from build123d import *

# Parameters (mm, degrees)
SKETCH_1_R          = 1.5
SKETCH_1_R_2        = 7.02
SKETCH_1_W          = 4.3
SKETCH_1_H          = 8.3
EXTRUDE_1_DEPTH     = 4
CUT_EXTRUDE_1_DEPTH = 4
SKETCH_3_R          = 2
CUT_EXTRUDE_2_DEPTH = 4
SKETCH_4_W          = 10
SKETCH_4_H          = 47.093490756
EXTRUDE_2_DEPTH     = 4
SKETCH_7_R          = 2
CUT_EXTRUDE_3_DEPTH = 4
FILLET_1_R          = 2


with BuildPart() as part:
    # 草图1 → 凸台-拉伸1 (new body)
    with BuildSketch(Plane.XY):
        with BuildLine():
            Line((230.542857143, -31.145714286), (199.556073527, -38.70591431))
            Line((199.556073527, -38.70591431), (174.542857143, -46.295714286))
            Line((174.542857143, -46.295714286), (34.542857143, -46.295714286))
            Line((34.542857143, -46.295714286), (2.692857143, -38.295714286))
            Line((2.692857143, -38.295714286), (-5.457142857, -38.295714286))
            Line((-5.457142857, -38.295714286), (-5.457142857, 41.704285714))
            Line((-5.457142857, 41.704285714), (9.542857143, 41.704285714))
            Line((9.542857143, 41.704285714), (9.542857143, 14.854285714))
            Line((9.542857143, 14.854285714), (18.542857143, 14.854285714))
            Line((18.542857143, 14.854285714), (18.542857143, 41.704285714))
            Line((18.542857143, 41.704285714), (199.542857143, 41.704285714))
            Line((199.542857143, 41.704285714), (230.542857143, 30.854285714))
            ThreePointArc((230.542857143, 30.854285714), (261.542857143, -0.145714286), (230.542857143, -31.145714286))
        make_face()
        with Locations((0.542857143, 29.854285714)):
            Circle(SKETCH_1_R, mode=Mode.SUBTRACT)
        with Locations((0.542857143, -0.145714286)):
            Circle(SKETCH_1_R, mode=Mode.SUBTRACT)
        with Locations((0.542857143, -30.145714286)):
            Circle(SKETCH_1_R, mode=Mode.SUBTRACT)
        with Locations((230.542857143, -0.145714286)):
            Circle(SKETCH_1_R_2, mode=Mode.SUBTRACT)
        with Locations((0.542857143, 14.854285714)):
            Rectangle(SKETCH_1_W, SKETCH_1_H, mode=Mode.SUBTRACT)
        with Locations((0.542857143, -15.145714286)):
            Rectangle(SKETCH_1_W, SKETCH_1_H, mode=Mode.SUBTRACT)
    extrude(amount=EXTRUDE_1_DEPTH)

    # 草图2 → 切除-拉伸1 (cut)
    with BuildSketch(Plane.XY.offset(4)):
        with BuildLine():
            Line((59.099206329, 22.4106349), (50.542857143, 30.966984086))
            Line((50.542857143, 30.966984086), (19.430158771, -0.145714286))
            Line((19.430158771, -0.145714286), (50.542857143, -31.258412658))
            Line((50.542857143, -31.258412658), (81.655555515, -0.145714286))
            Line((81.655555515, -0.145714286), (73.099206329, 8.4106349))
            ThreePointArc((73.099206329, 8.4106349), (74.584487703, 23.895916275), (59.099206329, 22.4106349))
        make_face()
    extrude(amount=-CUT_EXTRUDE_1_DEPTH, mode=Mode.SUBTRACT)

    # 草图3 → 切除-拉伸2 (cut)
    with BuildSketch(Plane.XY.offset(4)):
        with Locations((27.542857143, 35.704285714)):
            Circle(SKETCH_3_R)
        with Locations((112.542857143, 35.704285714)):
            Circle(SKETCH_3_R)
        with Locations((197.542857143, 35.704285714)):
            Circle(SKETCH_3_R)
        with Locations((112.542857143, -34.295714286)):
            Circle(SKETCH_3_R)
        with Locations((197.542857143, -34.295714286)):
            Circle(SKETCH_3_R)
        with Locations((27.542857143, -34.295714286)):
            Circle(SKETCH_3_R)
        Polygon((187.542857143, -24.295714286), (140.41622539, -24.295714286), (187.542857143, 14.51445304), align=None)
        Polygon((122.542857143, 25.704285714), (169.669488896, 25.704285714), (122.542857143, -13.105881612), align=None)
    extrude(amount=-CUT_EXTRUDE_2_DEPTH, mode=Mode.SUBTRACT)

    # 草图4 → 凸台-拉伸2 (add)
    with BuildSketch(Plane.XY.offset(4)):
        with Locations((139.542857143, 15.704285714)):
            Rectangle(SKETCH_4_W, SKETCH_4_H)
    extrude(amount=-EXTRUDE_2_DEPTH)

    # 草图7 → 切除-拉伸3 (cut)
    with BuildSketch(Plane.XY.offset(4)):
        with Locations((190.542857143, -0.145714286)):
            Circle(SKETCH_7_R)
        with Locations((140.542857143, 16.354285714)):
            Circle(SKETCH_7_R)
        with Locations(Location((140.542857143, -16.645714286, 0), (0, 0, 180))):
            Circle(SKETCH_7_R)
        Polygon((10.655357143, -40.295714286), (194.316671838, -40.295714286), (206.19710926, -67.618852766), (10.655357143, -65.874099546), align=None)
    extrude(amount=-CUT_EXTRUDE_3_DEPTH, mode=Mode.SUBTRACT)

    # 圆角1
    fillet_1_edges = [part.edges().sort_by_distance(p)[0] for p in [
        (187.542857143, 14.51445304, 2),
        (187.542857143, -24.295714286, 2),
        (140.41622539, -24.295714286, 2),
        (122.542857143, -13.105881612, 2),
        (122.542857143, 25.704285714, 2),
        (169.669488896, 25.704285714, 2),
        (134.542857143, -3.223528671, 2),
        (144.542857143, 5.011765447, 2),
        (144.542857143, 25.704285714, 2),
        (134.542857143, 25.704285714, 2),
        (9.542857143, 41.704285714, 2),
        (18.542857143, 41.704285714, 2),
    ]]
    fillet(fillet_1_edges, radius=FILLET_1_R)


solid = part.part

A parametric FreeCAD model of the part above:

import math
import FreeCAD as App
import Part
import Sketcher
from FreeCAD import Vector
Q = App.Units.Quantity


def edges_at(feature, points):
    """Names of the edges that pass closest to the given points."""
    edges = feature.Shape.Edges
    near = lambda p: min(range(len(edges)), key=lambda i: edges[i].distToShape(Part.Vertex(*p))[0])
    return sorted({f"Edge{near(p) + 1}" for p in points})


def add_polygon(sketch, points):
    """Adds a closed chain of lines whose ends are joined by coincident constraints."""
    first, n = sketch.GeometryCount, len(points)
    for a, b in zip(points, points[1:] + points[:1]):
        sketch.addGeometry(Part.LineSegment(App.Vector(*a, 0), App.Vector(*b, 0)), False)
    for i in range(n):
        sketch.addConstraint(Sketcher.Constraint("Coincident", first + i, 2, first + (i + 1) % n, 1))

doc = App.newDocument("Part")
body = doc.addObject("PartDesign::Body", "Body")

# Sketch on XY plane
sketch1 = body.newObject("Sketcher::SketchObject", "Sketch")
sketch1.AttachmentSupport = (doc.getObject("XY_Plane"), [""])
sketch1.MapMode = "FlatFace"
sketch1.addGeometry(Part.LineSegment(Vector(199.6, -38.7, 0), Vector(230.5, -31.1, 0)), False)  # 0
sketch1.addGeometry(Part.ArcOfCircle(Part.Circle(Vector(230.5, -0.1, 0), Vector(0, 0, 1), 31), math.radians(-90), math.radians(90)), False)  # 1
sketch1.addGeometry(Part.LineSegment(Vector(230.5, 30.9, 0), Vector(199.5, 41.7, 0)), False)  # 2
sketch1.addGeometry(Part.LineSegment(Vector(199.5, 41.7, 0), Vector(18.5, 41.7, 0)), False)  # 3
sketch1.addGeometry(Part.LineSegment(Vector(18.5, 41.7, 0), Vector(18.5, 14.9, 0)), False)  # 4
sketch1.addGeometry(Part.LineSegment(Vector(18.5, 14.9, 0), Vector(9.5, 14.9, 0)), False)  # 5
sketch1.addGeometry(Part.LineSegment(Vector(9.5, 14.9, 0), Vector(9.5, 41.7, 0)), False)  # 6
sketch1.addGeometry(Part.LineSegment(Vector(9.5, 41.7, 0), Vector(-5.5, 41.7, 0)), False)  # 7
sketch1.addGeometry(Part.LineSegment(Vector(-5.5, 41.7, 0), Vector(-5.5, -38.3, 0)), False)  # 8
sketch1.addGeometry(Part.LineSegment(Vector(-5.5, -38.3, 0), Vector(2.7, -38.3, 0)), False)  # 9
sketch1.addGeometry(Part.LineSegment(Vector(2.7, -38.3, 0), Vector(34.5, -46.3, 0)), False)  # 10
sketch1.addGeometry(Part.LineSegment(Vector(34.5, -46.3, 0), Vector(174.5, -46.3, 0)), False)  # 11
sketch1.addGeometry(Part.LineSegment(Vector(174.5, -46.3, 0), Vector(199.6, -38.7, 0)), False)  # 12
sketch1.addGeometry(Part.Circle(Vector(0.5, -30.1, 0), Vector(0, 0, 1), 1.5), False)  # 13
add_polygon(sketch1, [(-1.6, -19.3), (-1.6, -11), (2.7, -11), (2.7, -19.3)])  # lines 14-17
sketch1.addGeometry(Part.Circle(Vector(230.5, -0.1, 0), Vector(0, 0, 1), 7), False)  # 18
sketch1.addGeometry(Part.Circle(Vector(0.5, -0.1, 0), Vector(0, 0, 1), 1.5), False)  # 19
add_polygon(sketch1, [(-1.6, 10.7), (-1.6, 19), (2.7, 19), (2.7, 10.7)])  # lines 20-23
sketch1.addGeometry(Part.Circle(Vector(0.5, 29.9, 0), Vector(0, 0, 1), 1.5), False)  # 24
sketch1.addConstraint([
    Sketcher.Constraint("Coincident", 0, 2, 1, 1),
    Sketcher.Constraint("Coincident", 1, 2, 2, 1),
    Sketcher.Constraint("Coincident", 2, 2, 3, 1),
    Sketcher.Constraint("Coincident", 3, 2, 4, 1),
    Sketcher.Constraint("Coincident", 4, 2, 5, 1),
    Sketcher.Constraint("Coincident", 5, 2, 6, 1),
    Sketcher.Constraint("Coincident", 6, 2, 7, 1),
    Sketcher.Constraint("Coincident", 7, 2, 8, 1),
    Sketcher.Constraint("Coincident", 8, 2, 9, 1),
    Sketcher.Constraint("Coincident", 9, 2, 10, 1),
    Sketcher.Constraint("Coincident", 10, 2, 11, 1),
    Sketcher.Constraint("Coincident", 11, 2, 12, 1),
    Sketcher.Constraint("Coincident", 12, 2, 0, 1),
    Sketcher.Constraint("Horizontal", 3),
    Sketcher.Constraint("Vertical", 4),
    Sketcher.Constraint("Horizontal", 5),
    Sketcher.Constraint("Vertical", 6),
    Sketcher.Constraint("Horizontal", 7),
    Sketcher.Constraint("Vertical", 8),
    Sketcher.Constraint("Horizontal", 9),
    Sketcher.Constraint("Horizontal", 11),
    Sketcher.Constraint("Vertical", 14),
    Sketcher.Constraint("Horizontal", 15),
    Sketcher.Constraint("Vertical", 16),
    Sketcher.Constraint("Horizontal", 17),
    Sketcher.Constraint("Vertical", 20),
    Sketcher.Constraint("Horizontal", 21),
    Sketcher.Constraint("Vertical", 22),
    Sketcher.Constraint("Horizontal", 23),
    Sketcher.Constraint("Coincident", 18, 3, 1, 3),
    Sketcher.Constraint("Equal", 13, 19),
    Sketcher.Constraint("Equal", 19, 24),
    Sketcher.Constraint("Horizontal", 18, 3, 19, 3),
    Sketcher.Constraint("Horizontal", 3, 2, 6, 2),
    Sketcher.Constraint("Vertical", 13, 3, 19, 3),
    Sketcher.Constraint("Vertical", 19, 3, 24, 3),
    Sketcher.Constraint("Vertical", 18, 3, 0, 2),
    Sketcher.Constraint("Vertical", 0, 2, 1, 2),
    Sketcher.Constraint("Vertical", 9, 2, 15, 2),
    Sketcher.Constraint("Vertical", 17, 2, 20, 2),
    Sketcher.Constraint("Vertical", 16, 2, 21, 2),
    Sketcher.Constraint("Equal", 16, 20),
    Sketcher.Constraint("Diameter", 13, Q("3 mm")),
    Sketcher.Constraint("Radius", 1, Q("31 mm")),
    Sketcher.Constraint("Diameter", 18, Q("14.04 mm")),
    Sketcher.Constraint("DistanceX", 3, 2, 3, 1, Q("181 mm")),
    Sketcher.Constraint("DistanceX", 5, 2, 5, 1, Q("9 mm")),
    Sketcher.Constraint("DistanceX", 7, 2, 7, 1, Q("15 mm")),
    Sketcher.Constraint("DistanceX", 11, 1, 11, 2, Q("140 mm")),
    Sketcher.Constraint("DistanceY", 8, 2, 8, 1, Q("80 mm")),
    Sketcher.Constraint("DistanceX", 15, 1, 15, 2, Q("4.3 mm")),
    Sketcher.Constraint("DistanceY", 14, 1, 14, 2, Q("8.3 mm")),
    Sketcher.Constraint("DistanceX", 13, 3, 1, 3, Q("230 mm")),
    Sketcher.Constraint("DistanceY", 13, 3, 1, 3, Q("30 mm")),
    Sketcher.Constraint("DistanceY", 19, 3, 24, 3, Q("30 mm")),
    Sketcher.Constraint("DistanceX", 2, 2, 1, 2, Q("31 mm")),
    Sketcher.Constraint("DistanceY", 19, 3, 4, 2, Q("15 mm")),
    Sketcher.Constraint("DistanceY", 10, 2, 9, 2, Q("8 mm")),
    Sketcher.Constraint("DistanceX", 13, 3, 10, 2, Q("34 mm")),
    Sketcher.Constraint("DistanceY", 9, 2, 16, 2, Q("19 mm")),
    Sketcher.Constraint("DistanceX", 9, 1, 9, 2, Q("8.15 mm")),
    Sketcher.Constraint("DistanceY", 4, 2, 4, 1, Q("26.85 mm")),
    Sketcher.Constraint("DistanceY", 20, 2, 7, 2, Q("22.7 mm")),
    Sketcher.Constraint("DistanceY", 11, 2, 12, 2, Q("7.5898 mm")),
    Sketcher.Constraint("Distance", 12, Q("26.139358 mm")),
    Sketcher.Constraint("DistanceX", -1, 1, 1, 3, Q("230.542857 mm")),
    Sketcher.Constraint("DistanceY", 1, 3, -1, 1, Q("0.145714 mm")),
])
pad1 = body.newObject("PartDesign::Pad", "Pad")
pad1.Profile = sketch1
pad1.Length = 4

# Sketch on XY plane
sketch2 = body.newObject("Sketcher::SketchObject", "Sketch001")
sketch2.AttachmentSupport = (doc.getObject("XY_Plane"), [""])
sketch2.MapMode = "FlatFace"
sketch2.AttachmentOffset = App.Placement(Vector(0, 0, 4), App.Rotation())
sketch2.addGeometry([
    Part.LineSegment(Vector(59, 22, 0), Vector(51, 31, 0)),  # 0
    Part.LineSegment(Vector(51, 31, 0), Vector(19, 0, 0)),  # 1
    Part.LineSegment(Vector(19, 0, 0), Vector(51, -31, 0)),  # 2
    Part.LineSegment(Vector(51, -31, 0), Vector(82, 0, 0)),  # 3
    Part.LineSegment(Vector(82, 0, 0), Vector(73, 8, 0)),  # 4
    Part.ArcOfCircle(Part.Circle(Vector(67, 17, 0), Vector(0, 0, 1), 10), math.radians(-56), math.radians(146)),  # 5
], False)
sketch2.addConstraint([
    Sketcher.Constraint("Coincident", 0, 2, 1, 1),
    Sketcher.Constraint("Coincident", 1, 2, 2, 1),
    Sketcher.Constraint("Coincident", 2, 2, 3, 1),
    Sketcher.Constraint("Coincident", 3, 2, 4, 1),
    Sketcher.Constraint("Coincident", 4, 2, 5, 1),
    Sketcher.Constraint("Coincident", 5, 2, 0, 1),
    Sketcher.Constraint("Perpendicular", 0, 1),
    Sketcher.Constraint("Perpendicular", 1, 2),
    Sketcher.Constraint("Perpendicular", 2, 3),
    Sketcher.Constraint("Perpendicular", 3, 4),
    Sketcher.Constraint("Horizontal", 1, 2, 3, 2),
    Sketcher.Constraint("Vertical", 0, 2, 2, 2),
    Sketcher.Constraint("Equal", 1, 2),
    Sketcher.Constraint("Equal", 0, 4),
    Sketcher.Constraint("Distance", 1, Q("44 mm")),
    Sketcher.Constraint("DistanceX", 5, 2, 4, 2, Q("14 mm")),
    Sketcher.Constraint("Radius", 5, Q("10.083333 mm")),
    Sketcher.Constraint("DistanceX", -1, 1, 1, 2, Q("19.430159 mm")),
    Sketcher.Constraint("DistanceY", -1, 1, 5, 3, Q("16.765923 mm")),
])
pocket1 = body.newObject("PartDesign::Pocket", "Pocket")
pocket1.Profile = sketch2
pocket1.Length = 4

# Sketch on XY plane
sketch3 = body.newObject("Sketcher::SketchObject", "Sketch002")
sketch3.AttachmentSupport = (doc.getObject("XY_Plane"), [""])
sketch3.MapMode = "FlatFace"
sketch3.AttachmentOffset = App.Placement(Vector(0, 0, 4), App.Rotation())
sketch3.addGeometry(Part.Circle(Vector(27.5, 35.7, 0), Vector(0, 0, 1), 2), False)  # 0
sketch3.addGeometry(Part.Circle(Vector(112.5, 35.7, 0), Vector(0, 0, 1), 2), False)  # 1
sketch3.addGeometry(Part.Circle(Vector(197.5, 35.7, 0), Vector(0, 0, 1), 2), False)  # 2
sketch3.addGeometry(Part.Circle(Vector(112.5, -34.3, 0), Vector(0, 0, 1), 2), False)  # 3
sketch3.addGeometry(Part.Circle(Vector(197.5, -34.3, 0), Vector(0, 0, 1), 2), False)  # 4
sketch3.addGeometry(Part.Circle(Vector(27.5, -34.3, 0), Vector(0, 0, 1), 2), False)  # 5
add_polygon(sketch3, [(140.4, -24.3), (187.5, -24.3), (187.5, 14.5)])  # lines 6-8
add_polygon(sketch3, [(169.7, 25.7), (122.5, 25.7), (122.5, -13.1)])  # lines 9-11
sketch3.addConstraint([
    Sketcher.Constraint("Horizontal", 6),
    Sketcher.Constraint("Vertical", 7),
    Sketcher.Constraint("Horizontal", 9),
    Sketcher.Constraint("Vertical", 10),
    Sketcher.Constraint("Equal", 0, 1),
    Sketcher.Constraint("Equal", 1, 2),
    Sketcher.Constraint("Equal", 2, 3),
    Sketcher.Constraint("Equal", 3, 4),
    Sketcher.Constraint("Equal", 4, 5),
    Sketcher.Constraint("Parallel", 8, 11),
    Sketcher.Constraint("Horizontal", 0, 3, 1, 3),
    Sketcher.Constraint("Horizontal", 1, 3, 2, 3),
    Sketcher.Constraint("Horizontal", 3, 3, 4, 3),
    Sketcher.Constraint("Horizontal", 4, 3, 5, 3),
    Sketcher.Constraint("Vertical", 1, 3, 3, 3),
    Sketcher.Constraint("Vertical", 2, 3, 4, 3),
    Sketcher.Constraint("Vertical", 0, 3, 5, 3),
    Sketcher.Constraint("Equal", 6, 9),
    Sketcher.Constraint("Diameter", 0, Q("4 mm")),
    Sketcher.Constraint("DistanceX", 0, 3, 1, 3, Q("85 mm")),
    Sketcher.Constraint("DistanceX", 1, 3, 2, 3, Q("85 mm")),
    Sketcher.Constraint("DistanceY", 3, 3, 1, 3, Q("70 mm")),
    Sketcher.Constraint("DistanceX", 6, 2, 4, 3, Q("10 mm")),
    Sketcher.Constraint("DistanceY", 4, 3, 6, 2, Q("10 mm")),
    Sketcher.Constraint("DistanceX", 1, 3, 9, 2, Q("10 mm")),
    Sketcher.Constraint("DistanceY", 9, 2, 1, 3, Q("10 mm")),
    Sketcher.Constraint("DistanceX", 6, 1, 6, 2, Q("47.126632 mm")),
    Sketcher.Constraint("DistanceY", 7, 1, 7, 2, Q("38.810167 mm")),
    Sketcher.Constraint("DistanceY", 10, 2, -1, 1, Q("13.105882 mm")),
    Sketcher.Constraint("DistanceX", -1, 1, 11, 2, Q("169.669489 mm")),
])
pocket2 = body.newObject("PartDesign::Pocket", "Pocket001")
pocket2.Profile = sketch3
pocket2.Length = 4

# Sketch on XY plane
sketch4 = body.newObject("Sketcher::SketchObject", "Sketch003")
sketch4.AttachmentSupport = (doc.getObject("XY_Plane"), [""])
sketch4.MapMode = "FlatFace"
sketch4.AttachmentOffset = App.Placement(Vector(0, 0, 4), App.Rotation())
add_polygon(sketch4, [(135, 39), (135, -8), (145, -8), (145, 39)])  # lines 0-3
sketch4.addConstraint([
    Sketcher.Constraint("Vertical", 0),
    Sketcher.Constraint("Horizontal", 1),
    Sketcher.Constraint("Vertical", 2),
    Sketcher.Constraint("Horizontal", 3),
    Sketcher.Constraint("DistanceX", 1, 1, 1, 2, Q("10 mm")),
    Sketcher.Constraint("DistanceY", 0, 2, 0, 1, Q("47.093491 mm")),
    Sketcher.Constraint("DistanceY", 0, 2, -1, 1, Q("7.84246 mm")),
    Sketcher.Constraint("DistanceX", -1, 1, 0, 2, Q("134.542857 mm")),
])
pad2 = body.newObject("PartDesign::Pad", "Pad001")
pad2.Profile = sketch4
pad2.Length = 4
pad2.Reversed = True

# Sketch on XY plane
sketch5 = body.newObject("Sketcher::SketchObject", "Sketch004")
sketch5.AttachmentSupport = (doc.getObject("XY_Plane"), [""])
sketch5.MapMode = "FlatFace"
sketch5.AttachmentOffset = App.Placement(Vector(0, 0, 4), App.Rotation())
sketch5.addGeometry(Part.Circle(Vector(190.5, -0.1, 0), Vector(0, 0, 1), 2), False)  # 0
sketch5.addGeometry(Part.Circle(Vector(140.5, 16.4, 0), Vector(0, 0, 1), 2), False)  # 1
sketch5.addGeometry(Part.Circle(Vector(140.5, -16.6, 0), Vector(0, 0, 1), 2), False)  # 2
add_polygon(sketch5, [(194.3, -40.3), (10.7, -40.3), (10.7, -65.9), (206.2, -67.6)])  # lines 3-6
sketch5.addConstraint([
    Sketcher.Constraint("Horizontal", 3),
    Sketcher.Constraint("Vertical", 4),
    Sketcher.Constraint("Equal", 0, 1),
    Sketcher.Constraint("Equal", 1, 2),
    Sketcher.Constraint("Vertical", 1, 3, 2, 3),
    Sketcher.Constraint("Diameter", 0, Q("4 mm")),
    Sketcher.Constraint("Angle", 6, Q("113.499998 deg")),
    Sketcher.Constraint("DistanceX", 1, 3, 0, 3, Q("50 mm")),
    Sketcher.Constraint("DistanceY", 2, 3, 1, 3, Q("33 mm")),
    Sketcher.Constraint("DistanceY", 0, 3, 1, 3, Q("16.5 mm")),
    Sketcher.Constraint("DistanceY", 3, 2, 2, 3, Q("23.65 mm")),
    Sketcher.Constraint("DistanceY", 4, 2, -1, 1, Q("65.8741 mm")),
    Sketcher.Constraint("DistanceX", 3, 2, 2, 3, Q("129.8875 mm")),
    Sketcher.Constraint("DistanceX", 3, 2, 3, 1, Q("183.661315 mm")),
    Sketcher.Constraint("DistanceY", 4, 2, 4, 1, Q("25.578385 mm")),
    Sketcher.Constraint("DistanceX", -1, 1, 5, 2, Q("206.197109 mm")),
    Sketcher.Constraint("DistanceX", -1, 1, 6, 2, Q("194.316672 mm")),
])
pocket3 = body.newObject("PartDesign::Pocket", "Pocket002")
pocket3.Profile = sketch5
pocket3.Length = 4
doc.recompute()

fillet = body.newObject("PartDesign::Fillet", "Fillet")
fillet.Base = (pocket3, edges_at(pocket3, [
    (187.543, 14.514, 2),
    (187.543, -24.296, 2),
    (140.416, -24.296, 2),
    (122.543, -13.106, 2),
    (122.543, 25.704, 2),
    (169.669, 25.704, 2),
    (134.543, -3.224, 2),
    (144.543, 5.012, 2),
    (144.543, 25.704, 2),
    (134.543, 25.704, 2),
    (9.543, 41.704, 2),
    (18.543, 41.704, 2),
]))
fillet.Radius = 2

doc.recompute()
